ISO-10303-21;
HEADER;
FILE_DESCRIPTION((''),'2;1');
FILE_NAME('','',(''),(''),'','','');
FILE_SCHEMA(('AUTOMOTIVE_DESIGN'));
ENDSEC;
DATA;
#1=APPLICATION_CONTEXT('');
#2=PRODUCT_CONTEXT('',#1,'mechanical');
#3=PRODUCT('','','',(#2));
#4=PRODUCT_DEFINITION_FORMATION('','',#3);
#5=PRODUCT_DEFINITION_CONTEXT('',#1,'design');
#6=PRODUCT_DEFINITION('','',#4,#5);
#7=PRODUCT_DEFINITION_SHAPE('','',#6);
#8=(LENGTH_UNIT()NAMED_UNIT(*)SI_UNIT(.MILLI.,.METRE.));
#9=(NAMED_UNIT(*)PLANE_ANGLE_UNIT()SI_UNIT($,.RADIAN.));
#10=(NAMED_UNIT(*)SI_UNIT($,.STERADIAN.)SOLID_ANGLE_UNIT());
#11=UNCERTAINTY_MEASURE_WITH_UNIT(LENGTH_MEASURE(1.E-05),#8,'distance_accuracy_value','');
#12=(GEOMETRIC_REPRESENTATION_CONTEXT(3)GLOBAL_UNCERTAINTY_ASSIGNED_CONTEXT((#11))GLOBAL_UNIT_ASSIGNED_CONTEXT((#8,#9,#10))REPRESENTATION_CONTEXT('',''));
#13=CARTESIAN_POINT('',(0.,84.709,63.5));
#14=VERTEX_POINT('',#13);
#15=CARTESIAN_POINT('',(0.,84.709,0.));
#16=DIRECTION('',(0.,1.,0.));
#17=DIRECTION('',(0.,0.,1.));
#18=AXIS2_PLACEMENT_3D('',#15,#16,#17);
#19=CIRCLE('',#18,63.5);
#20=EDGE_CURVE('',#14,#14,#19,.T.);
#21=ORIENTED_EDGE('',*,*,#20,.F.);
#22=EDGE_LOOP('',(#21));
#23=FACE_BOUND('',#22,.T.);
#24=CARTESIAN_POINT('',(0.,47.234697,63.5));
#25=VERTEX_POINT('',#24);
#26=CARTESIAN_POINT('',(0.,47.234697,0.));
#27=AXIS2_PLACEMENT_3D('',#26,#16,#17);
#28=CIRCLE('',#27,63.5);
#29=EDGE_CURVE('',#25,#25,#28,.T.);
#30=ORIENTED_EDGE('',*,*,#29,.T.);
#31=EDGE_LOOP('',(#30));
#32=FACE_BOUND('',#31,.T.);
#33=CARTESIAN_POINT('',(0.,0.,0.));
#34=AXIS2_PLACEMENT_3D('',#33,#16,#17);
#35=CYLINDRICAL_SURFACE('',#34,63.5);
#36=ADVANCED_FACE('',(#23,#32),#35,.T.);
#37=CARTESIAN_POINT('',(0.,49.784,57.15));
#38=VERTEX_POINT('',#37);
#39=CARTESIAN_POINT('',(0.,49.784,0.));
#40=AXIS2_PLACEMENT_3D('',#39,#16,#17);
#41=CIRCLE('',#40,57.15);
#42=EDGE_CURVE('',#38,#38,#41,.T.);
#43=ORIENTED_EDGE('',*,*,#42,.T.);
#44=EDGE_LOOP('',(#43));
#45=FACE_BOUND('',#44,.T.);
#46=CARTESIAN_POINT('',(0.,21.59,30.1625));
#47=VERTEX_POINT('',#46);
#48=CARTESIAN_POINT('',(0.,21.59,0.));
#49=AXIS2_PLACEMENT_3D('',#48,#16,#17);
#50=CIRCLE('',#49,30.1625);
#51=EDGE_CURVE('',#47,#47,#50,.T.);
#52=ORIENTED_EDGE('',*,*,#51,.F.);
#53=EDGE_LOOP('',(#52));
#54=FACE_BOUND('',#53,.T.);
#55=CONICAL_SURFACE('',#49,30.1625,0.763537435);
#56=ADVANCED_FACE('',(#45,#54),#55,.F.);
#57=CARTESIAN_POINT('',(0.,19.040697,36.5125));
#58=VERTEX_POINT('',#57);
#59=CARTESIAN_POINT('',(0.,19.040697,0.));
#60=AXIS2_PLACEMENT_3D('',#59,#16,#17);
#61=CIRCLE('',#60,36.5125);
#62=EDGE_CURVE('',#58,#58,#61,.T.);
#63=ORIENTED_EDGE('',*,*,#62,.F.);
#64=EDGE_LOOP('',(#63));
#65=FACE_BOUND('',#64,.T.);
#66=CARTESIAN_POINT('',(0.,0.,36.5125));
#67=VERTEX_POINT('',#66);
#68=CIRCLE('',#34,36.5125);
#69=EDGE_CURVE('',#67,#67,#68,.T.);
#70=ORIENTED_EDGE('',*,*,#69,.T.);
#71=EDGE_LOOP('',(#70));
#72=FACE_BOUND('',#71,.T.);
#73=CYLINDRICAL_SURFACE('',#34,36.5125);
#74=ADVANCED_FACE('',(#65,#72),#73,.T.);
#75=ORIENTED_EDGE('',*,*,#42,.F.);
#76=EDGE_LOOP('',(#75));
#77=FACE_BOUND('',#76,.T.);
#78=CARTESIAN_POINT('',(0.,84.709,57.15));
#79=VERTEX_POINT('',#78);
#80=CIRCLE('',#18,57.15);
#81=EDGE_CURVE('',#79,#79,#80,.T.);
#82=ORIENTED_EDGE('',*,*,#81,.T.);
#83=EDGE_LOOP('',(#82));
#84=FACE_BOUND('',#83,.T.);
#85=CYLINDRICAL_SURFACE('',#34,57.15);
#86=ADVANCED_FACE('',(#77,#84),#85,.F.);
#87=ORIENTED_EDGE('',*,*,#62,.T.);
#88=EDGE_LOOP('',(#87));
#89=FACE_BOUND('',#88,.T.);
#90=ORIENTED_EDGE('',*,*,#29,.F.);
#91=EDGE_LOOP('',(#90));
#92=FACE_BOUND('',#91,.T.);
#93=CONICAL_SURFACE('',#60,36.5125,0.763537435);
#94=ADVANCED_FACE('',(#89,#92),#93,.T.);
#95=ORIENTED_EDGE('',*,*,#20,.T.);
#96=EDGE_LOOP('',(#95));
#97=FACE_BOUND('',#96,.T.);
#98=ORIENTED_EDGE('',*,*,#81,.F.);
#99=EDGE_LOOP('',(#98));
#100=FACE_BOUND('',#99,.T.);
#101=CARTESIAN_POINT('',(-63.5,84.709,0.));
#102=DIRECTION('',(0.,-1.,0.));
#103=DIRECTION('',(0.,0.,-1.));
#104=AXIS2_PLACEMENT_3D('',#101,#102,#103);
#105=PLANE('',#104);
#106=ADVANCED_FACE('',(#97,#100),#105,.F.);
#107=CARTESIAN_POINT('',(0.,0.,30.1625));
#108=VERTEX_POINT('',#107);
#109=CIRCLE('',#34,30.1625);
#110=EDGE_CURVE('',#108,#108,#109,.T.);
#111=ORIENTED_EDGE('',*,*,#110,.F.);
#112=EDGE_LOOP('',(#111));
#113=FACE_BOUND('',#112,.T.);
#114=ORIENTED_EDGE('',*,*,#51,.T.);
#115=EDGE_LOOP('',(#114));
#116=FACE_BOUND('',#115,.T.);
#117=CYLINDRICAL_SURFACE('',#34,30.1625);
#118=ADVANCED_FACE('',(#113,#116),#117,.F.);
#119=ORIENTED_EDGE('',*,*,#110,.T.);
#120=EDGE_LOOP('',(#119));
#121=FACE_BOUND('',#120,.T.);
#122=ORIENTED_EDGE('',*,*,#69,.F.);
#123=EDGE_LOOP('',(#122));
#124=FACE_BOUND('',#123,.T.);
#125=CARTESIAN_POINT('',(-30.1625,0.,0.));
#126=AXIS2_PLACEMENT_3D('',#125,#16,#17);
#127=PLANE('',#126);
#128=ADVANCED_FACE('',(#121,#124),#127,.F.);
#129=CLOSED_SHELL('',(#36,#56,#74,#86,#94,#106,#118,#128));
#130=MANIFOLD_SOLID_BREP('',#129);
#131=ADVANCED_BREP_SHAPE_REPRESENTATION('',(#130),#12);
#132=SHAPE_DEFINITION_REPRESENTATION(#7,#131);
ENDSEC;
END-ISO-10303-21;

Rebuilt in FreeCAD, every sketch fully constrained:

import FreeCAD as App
import Part
import Sketcher

V = App.Vector
Q = App.Units.Quantity

doc = App.newDocument("Part")
body = doc.addObject("PartDesign::Body", "Body")

# Sketch on XY plane
sketch1 = doc.addObject("Sketcher::SketchObject", "Sketch")
body.addObject(sketch1)
sketch1.AttachmentSupport = (doc.XY_Plane, [""])
sketch1.MapMode = "FlatFace"
sketch1.addGeometry(Part.LineSegment(V(-30.1625, 0, 0), V(-30.1625, 21.59, 0)), False)
sketch1.addGeometry(Part.LineSegment(V(-30.1625, 21.59, 0), V(-57.15, 49.784, 0)), False)
sketch1.addGeometry(Part.LineSegment(V(-57.15, 49.784, 0), V(-57.15, 84.709, 0)), False)
sketch1.addGeometry(Part.LineSegment(V(-57.15, 84.709, 0), V(-63.5, 84.709, 0)), False)
sketch1.addGeometry(Part.LineSegment(V(-63.5, 84.709, 0), V(-63.5, 47.234697, 0)), False)
sketch1.addGeometry(Part.LineSegment(V(-63.5, 47.234697, 0), V(-36.5125, 19.040697, 0)), False)
sketch1.addGeometry(Part.LineSegment(V(-36.5125, 19.040697, 0), V(-36.5125, 0, 0)), False)
sketch1.addGeometry(Part.LineSegment(V(-36.5125, 0, 0), V(-30.1625, 0, 0)), False)
sketch1.addConstraint(Sketcher.Constraint("Coincident", 0, 2, 1, 1))
sketch1.addConstraint(Sketcher.Constraint("Coincident", 1, 2, 2, 1))
sketch1.addConstraint(Sketcher.Constraint("Coincident", 2, 2, 3, 1))
sketch1.addConstraint(Sketcher.Constraint("Coincident", 3, 2, 4, 1))
sketch1.addConstraint(Sketcher.Constraint("Coincident", 4, 2, 5, 1))
sketch1.addConstraint(Sketcher.Constraint("Coincident", 5, 2, 6, 1))
sketch1.addConstraint(Sketcher.Constraint("Coincident", 6, 2, 7, 1))
sketch1.addConstraint(Sketcher.Constraint("Coincident", 7, 2, 0, 1))
sketch1.addConstraint(Sketcher.Constraint("Vertical", 0))
sketch1.addConstraint(Sketcher.Constraint("Vertical", 2))
sketch1.addConstraint(Sketcher.Constraint("Horizontal", 3))
sketch1.addConstraint(Sketcher.Constraint("Vertical", 4))
sketch1.addConstraint(Sketcher.Constraint("Vertical", 6))
sketch1.addConstraint(Sketcher.Constraint("Horizontal", 7))
sketch1.addConstraint(Sketcher.Constraint("PointOnObject", 6, 2, -1))
sketch1.addConstraint(Sketcher.Constraint("Parallel", 1, 5))
sketch1.addConstraint(Sketcher.Constraint("Equal", 3, 7))
sketch1.addConstraint(Sketcher.Constraint("DistanceX", 3, 2, 3, 1, Q("0.25 in")))
sketch1.addConstraint(Sketcher.Constraint("DistanceY", 0, 1, 0, 2, Q("0.85 in")))
sketch1.addConstraint(Sketcher.Constraint("DistanceX", 3, 2, -1, 1, Q("2.5 in")))
sketch1.addConstraint(Sketcher.Constraint("DistanceY", 2, 1, 2, 2, Q("1.375 in")))
sketch1.addConstraint(Sketcher.Constraint("DistanceY", -1, 1, 1, 2, Q("1.96 in")))
sketch1.addConstraint(Sketcher.Constraint("DistanceX", 0, 2, -1, 1, Q("1.1875 in")))
sketch1.addConstraint(Sketcher.Constraint("DistanceY", 4, 2, 4, 1, Q("37.474303 mm")))
revolution = doc.addObject("PartDesign::Revolution", "Revolution")
body.addObject(revolution)
revolution.Profile = sketch1
revolution.ReferenceAxis = (sketch1, ["V_Axis"])
revolution.Angle = 360

doc.recompute()
